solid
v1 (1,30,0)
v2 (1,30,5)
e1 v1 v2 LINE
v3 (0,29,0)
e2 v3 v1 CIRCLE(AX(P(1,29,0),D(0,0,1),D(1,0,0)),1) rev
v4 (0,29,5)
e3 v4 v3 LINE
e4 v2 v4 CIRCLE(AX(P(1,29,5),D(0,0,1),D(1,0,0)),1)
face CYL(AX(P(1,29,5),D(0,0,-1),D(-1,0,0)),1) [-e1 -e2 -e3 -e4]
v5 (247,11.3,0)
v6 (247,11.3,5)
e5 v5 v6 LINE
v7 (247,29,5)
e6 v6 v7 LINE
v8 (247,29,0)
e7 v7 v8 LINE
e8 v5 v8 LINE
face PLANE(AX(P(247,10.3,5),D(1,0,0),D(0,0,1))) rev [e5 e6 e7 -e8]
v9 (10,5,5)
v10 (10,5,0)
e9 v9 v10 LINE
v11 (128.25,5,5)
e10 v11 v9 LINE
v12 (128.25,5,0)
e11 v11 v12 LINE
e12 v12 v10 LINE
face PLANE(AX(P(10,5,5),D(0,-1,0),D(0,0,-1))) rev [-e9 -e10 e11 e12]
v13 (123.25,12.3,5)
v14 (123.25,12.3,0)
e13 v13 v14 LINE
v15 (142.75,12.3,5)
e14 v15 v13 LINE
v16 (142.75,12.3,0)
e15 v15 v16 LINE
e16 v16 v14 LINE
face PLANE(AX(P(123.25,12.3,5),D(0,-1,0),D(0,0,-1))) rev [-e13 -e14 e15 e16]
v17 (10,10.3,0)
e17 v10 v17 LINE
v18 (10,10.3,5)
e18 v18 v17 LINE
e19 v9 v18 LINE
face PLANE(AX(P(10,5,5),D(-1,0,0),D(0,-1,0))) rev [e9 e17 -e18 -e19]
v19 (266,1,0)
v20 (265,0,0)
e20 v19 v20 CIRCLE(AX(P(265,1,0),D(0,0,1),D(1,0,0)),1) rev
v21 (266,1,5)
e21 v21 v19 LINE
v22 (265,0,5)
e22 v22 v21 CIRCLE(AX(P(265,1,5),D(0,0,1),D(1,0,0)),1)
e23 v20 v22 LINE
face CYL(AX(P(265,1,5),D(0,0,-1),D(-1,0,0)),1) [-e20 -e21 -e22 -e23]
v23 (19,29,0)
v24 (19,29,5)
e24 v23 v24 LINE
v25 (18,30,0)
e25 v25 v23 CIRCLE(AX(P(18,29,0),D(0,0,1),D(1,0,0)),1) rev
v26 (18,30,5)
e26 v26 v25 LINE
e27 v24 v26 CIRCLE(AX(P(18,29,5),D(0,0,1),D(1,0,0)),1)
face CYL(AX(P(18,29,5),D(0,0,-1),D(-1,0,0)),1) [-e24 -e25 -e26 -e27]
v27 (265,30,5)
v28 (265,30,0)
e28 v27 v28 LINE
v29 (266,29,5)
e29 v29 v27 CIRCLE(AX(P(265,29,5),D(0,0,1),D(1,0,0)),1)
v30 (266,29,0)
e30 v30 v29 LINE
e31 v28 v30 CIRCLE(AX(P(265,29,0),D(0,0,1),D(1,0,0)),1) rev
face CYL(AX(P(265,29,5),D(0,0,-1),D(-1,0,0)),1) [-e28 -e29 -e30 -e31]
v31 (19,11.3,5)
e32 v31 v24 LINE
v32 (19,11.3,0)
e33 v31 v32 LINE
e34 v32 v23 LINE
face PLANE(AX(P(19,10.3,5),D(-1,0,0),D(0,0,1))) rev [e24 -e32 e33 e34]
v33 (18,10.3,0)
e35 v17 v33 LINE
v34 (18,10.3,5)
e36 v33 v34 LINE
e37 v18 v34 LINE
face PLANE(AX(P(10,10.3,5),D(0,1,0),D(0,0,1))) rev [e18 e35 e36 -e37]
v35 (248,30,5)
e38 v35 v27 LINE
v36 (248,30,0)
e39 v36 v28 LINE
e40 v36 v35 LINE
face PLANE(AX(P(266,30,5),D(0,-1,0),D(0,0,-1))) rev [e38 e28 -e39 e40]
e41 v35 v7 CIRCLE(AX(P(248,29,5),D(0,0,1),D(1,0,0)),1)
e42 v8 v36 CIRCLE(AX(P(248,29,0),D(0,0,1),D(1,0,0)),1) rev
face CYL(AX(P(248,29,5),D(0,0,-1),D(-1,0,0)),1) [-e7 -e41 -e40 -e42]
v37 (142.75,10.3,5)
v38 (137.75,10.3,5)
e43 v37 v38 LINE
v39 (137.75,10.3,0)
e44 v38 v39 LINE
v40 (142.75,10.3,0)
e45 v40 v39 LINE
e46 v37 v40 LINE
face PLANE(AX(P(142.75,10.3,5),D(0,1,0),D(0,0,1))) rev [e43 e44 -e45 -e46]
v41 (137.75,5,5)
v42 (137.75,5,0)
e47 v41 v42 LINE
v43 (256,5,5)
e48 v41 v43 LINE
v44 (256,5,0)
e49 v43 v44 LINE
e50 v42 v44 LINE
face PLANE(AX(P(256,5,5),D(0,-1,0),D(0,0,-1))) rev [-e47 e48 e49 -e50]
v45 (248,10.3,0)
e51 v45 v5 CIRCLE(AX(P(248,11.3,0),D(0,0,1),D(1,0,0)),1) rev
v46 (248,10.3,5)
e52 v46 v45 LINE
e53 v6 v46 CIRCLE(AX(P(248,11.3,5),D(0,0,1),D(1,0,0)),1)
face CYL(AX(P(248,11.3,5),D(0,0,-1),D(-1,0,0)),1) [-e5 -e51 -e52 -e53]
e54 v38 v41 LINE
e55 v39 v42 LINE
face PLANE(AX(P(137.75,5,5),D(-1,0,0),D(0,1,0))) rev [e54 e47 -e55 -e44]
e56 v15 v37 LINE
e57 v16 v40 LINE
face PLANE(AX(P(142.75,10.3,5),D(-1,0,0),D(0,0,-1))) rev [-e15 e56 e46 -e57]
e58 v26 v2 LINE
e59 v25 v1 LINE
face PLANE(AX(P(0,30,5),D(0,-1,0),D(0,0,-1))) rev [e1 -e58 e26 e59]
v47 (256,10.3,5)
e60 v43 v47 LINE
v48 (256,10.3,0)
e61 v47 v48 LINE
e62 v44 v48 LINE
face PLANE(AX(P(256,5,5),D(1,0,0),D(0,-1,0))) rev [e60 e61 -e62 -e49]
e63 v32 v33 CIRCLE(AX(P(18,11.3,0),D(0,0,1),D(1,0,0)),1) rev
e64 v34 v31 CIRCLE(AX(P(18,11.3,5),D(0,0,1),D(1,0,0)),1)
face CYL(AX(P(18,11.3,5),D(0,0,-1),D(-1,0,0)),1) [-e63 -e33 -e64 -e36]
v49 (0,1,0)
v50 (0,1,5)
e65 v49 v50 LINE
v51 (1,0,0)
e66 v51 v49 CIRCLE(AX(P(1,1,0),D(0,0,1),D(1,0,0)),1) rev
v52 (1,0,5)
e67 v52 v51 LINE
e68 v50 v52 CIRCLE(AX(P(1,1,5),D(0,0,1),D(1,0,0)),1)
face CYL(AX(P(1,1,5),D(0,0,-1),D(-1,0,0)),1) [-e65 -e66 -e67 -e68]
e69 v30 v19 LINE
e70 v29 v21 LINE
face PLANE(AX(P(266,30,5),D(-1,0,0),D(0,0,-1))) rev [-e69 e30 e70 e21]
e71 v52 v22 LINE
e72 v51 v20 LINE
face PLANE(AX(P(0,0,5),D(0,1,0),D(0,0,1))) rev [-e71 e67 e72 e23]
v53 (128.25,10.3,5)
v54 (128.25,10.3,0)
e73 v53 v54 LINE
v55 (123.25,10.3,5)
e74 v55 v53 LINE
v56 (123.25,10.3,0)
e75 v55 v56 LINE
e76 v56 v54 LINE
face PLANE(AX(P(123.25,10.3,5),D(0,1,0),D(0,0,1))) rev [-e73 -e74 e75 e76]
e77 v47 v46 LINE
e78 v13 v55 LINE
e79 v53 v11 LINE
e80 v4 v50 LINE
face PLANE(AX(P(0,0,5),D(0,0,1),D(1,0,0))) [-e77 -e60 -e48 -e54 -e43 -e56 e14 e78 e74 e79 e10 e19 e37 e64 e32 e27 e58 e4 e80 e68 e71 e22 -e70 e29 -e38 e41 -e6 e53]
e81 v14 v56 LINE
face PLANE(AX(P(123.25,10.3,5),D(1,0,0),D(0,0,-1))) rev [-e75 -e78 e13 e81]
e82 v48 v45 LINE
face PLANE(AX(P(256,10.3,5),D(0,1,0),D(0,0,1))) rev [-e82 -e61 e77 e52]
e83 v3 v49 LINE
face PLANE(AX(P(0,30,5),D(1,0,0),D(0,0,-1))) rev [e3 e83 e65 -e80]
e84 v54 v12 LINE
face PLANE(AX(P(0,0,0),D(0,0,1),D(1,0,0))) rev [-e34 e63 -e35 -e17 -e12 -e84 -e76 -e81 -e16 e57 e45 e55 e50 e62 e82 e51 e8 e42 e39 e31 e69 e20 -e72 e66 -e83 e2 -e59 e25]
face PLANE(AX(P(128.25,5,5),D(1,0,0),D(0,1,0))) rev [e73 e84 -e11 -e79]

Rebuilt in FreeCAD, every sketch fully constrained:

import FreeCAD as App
import Part
import Sketcher
from FreeCAD import Vector


def edges_at(feature, points):
    """Names of the edges that pass closest to the given points."""
    edges = feature.Shape.Edges
    near = lambda p: min(range(len(edges)), key=lambda i: edges[i].distToShape(Part.Vertex(*p))[0])
    return sorted({f"Edge{near(p) + 1}" for p in points})


def add_polygon(sketch, points):
    """Adds a closed chain of lines whose ends are joined by coincident constraints."""
    first, n = sketch.GeometryCount, len(points)
    for a, b in zip(points, points[1:] + points[:1]):
        sketch.addGeometry(Part.LineSegment(App.Vector(*a, 0), App.Vector(*b, 0)), False)
    for i in range(n):
        sketch.addConstraint(Sketcher.Constraint("Coincident", first + i, 2, first + (i + 1) % n, 1))

doc = App.newDocument("Part")
body = doc.addObject("PartDesign::Body", "Body")

# Sketch on XY plane
sketch1 = doc.addObject("Sketcher::SketchObject", "Sketch")
body.addObject(sketch1)
sketch1.AttachmentSupport = (doc.XY_Plane, [""])
sketch1.MapMode = "FlatFace"
add_polygon(sketch1, [(0, 0), (133, 0), (133, 12.3), (123.2, 12.3), (123.2, 10.3), (128.2, 10.3), (128.2, 5), (10, 5), (10, 10.3), (19, 10.3), (19, 30), (0, 30)])  # lines 0-11
sketch1.addConstraint(Sketcher.Constraint("Horizontal", 0))
sketch1.addConstraint(Sketcher.Constraint("Vertical", 1))
sketch1.addConstraint(Sketcher.Constraint("Horizontal", 2))
sketch1.addConstraint(Sketcher.Constraint("Vertical", 3))
sketch1.addConstraint(Sketcher.Constraint("Horizontal", 4))
sketch1.addConstraint(Sketcher.Constraint("Vertical", 5))
sketch1.addConstraint(Sketcher.Constraint("Horizontal", 6))
sketch1.addConstraint(Sketcher.Constraint("Vertical", 7))
sketch1.addConstraint(Sketcher.Constraint("Horizontal", 8))
sketch1.addConstraint(Sketcher.Constraint("Vertical", 9))
sketch1.addConstraint(Sketcher.Constraint("Horizontal", 10))
sketch1.addConstraint(Sketcher.Constraint("Vertical", 11))
sketch1.addConstraint(Sketcher.Constraint("Coincident", 11, 2, -1, 1))
sketch1.addConstraint(Sketcher.Constraint("Horizontal", 4, 2, 7, 2))
sketch1.addConstraint(Sketcher.Constraint("DistanceX", 0, 1, 0, 2, 133.0))
sketch1.addConstraint(Sketcher.Constraint("DistanceX", 4, 1, 4, 2, 5.0))
sketch1.addConstraint(Sketcher.Constraint("DistanceX", 8, 1, 8, 2, 9.0))
sketch1.addConstraint(Sketcher.Constraint("DistanceX", 10, 2, 10, 1, 19.0))
sketch1.addConstraint(Sketcher.Constraint("DistanceY", 3, 2, 3, 1, 2.0))
sketch1.addConstraint(Sketcher.Constraint("DistanceY", 11, 2, 11, 1, 30.0))
sketch1.addConstraint(Sketcher.Constraint("DistanceY", 1, 1, 1, 2, 12.3))
sketch1.addConstraint(Sketcher.Constraint("DistanceY", 5, 2, 5, 1, 5.3))
sketch1.addConstraint(Sketcher.Constraint("DistanceX", 2, 2, 2, 1, 9.75))
pad1 = doc.addObject("PartDesign::Pad", "Pad")
body.addObject(pad1)
pad1.Profile = sketch1
pad1.Length = 5
body2 = doc.addObject("PartDesign::Body", "Body001")
doc.recompute()

body2.BaseFeature = body
doc.recompute()

mirroring = doc.addObject("Part::Mirroring", "Mirroring")
mirroring.Source = body
mirroring.Base = Vector(133, 12.3, 5)
mirroring.Normal = Vector(-1, 0, 0)
body3 = doc.addObject("PartDesign::Body", "Body002")
body3.BaseFeature = mirroring
boolean = doc.addObject("PartDesign::Boolean", "Boolean")
body2.addObject(boolean)
boolean.Type = "Fuse"
boolean.addObjects([body3])
doc.recompute()

fillet = doc.addObject("PartDesign::Fillet", "Fillet")
body2.addObject(fillet)
fillet.Base = (boolean, edges_at(boolean, [
    (0, 30, 2.5),
    (19, 30, 2.5),
    (19, 10.3, 2.5),
    (0, 0, 2.5),
    (266, 0, 2.5),
    (247, 10.3, 2.5),
    (247, 30, 2.5),
    (266, 30, 2.5),
]))
fillet.Radius = 1
mirroring.Visibility = False

doc.recompute()
